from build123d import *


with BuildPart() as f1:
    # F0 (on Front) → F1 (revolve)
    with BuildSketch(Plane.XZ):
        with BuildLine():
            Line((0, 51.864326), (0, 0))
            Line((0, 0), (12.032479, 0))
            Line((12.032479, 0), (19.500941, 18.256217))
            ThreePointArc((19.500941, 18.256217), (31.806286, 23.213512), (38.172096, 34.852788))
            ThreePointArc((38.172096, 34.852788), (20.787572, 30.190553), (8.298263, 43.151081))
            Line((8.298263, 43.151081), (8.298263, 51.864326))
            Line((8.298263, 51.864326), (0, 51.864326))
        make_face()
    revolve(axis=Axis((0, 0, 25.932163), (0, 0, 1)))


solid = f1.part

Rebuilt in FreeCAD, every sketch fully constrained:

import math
import FreeCAD as App
import Part
import Sketcher
Q = App.Units.Quantity

doc = App.newDocument("Part")
body = doc.addObject("PartDesign::Body", "Body")

sketch1 = doc.addObject("Sketcher::SketchObject", "Sketch")
body.addObject(sketch1)
sketch1.AttachmentSupport = (doc.XZ_Plane, [""])
sketch1.MapMode = "FlatFace"
sketch1.addGeometry(Part.LineSegment(App.Vector(0, 52, 0), App.Vector(0, 0, 0)), False)
sketch1.addGeometry(Part.LineSegment(App.Vector(0, 0, 0), App.Vector(12, 0, 0)), False)
sketch1.addGeometry(Part.LineSegment(App.Vector(12, 0, 0), App.Vector(20, 18, 0)), False)
sketch1.addGeometry(Part.ArcOfCircle(Part.Circle(App.Vector(19, 38, 0), App.Vector(0, 0, 1), 20), math.radians(-88), math.radians(-9)), False)
sketch1.addGeometry(Part.ArcOfCircle(Part.Circle(App.Vector(26, 47, 0), App.Vector(0, 0, 1), 18), math.radians(-167), math.radians(-44)), False)
sketch1.addGeometry(Part.LineSegment(App.Vector(8, 43, 0), App.Vector(8, 52, 0)), False)
sketch1.addGeometry(Part.LineSegment(App.Vector(8, 52, 0), App.Vector(0, 52, 0)), False)
sketch1.addConstraint(Sketcher.Constraint("Coincident", 0, 2, 1, 1))
sketch1.addConstraint(Sketcher.Constraint("Coincident", 1, 2, 2, 1))
sketch1.addConstraint(Sketcher.Constraint("Coincident", 2, 2, 3, 1))
sketch1.addConstraint(Sketcher.Constraint("Coincident", 3, 2, 4, 2))
sketch1.addConstraint(Sketcher.Constraint("Coincident", 4, 1, 5, 1))
sketch1.addConstraint(Sketcher.Constraint("Coincident", 5, 2, 6, 1))
sketch1.addConstraint(Sketcher.Constraint("Coincident", 6, 2, 0, 1))
sketch1.addConstraint(Sketcher.Constraint("Vertical", 0))
sketch1.addConstraint(Sketcher.Constraint("Horizontal", 1))
sketch1.addConstraint(Sketcher.Constraint("Vertical", 5))
sketch1.addConstraint(Sketcher.Constraint("Horizontal", 6))
sketch1.addConstraint(Sketcher.Constraint("Coincident", 0, 2, -1, 1))
sketch1.addConstraint(Sketcher.Constraint("Radius", 3, Q("19.685973 mm")))
sketch1.addConstraint(Sketcher.Constraint("Radius", 4, Q("17.712287 mm")))
sketch1.addConstraint(Sketcher.Constraint("DistanceX", 1, 1, 1, 2, Q("12.032479 mm")))
sketch1.addConstraint(Sketcher.Constraint("DistanceX", 3, 3, 2, 2, Q("0.773299 mm")))
sketch1.addConstraint(Sketcher.Constraint("Distance", 2, Q("19.724791 mm")))
sketch1.addConstraint(Sketcher.Constraint("DistanceX", 6, 2, 6, 1, Q("8.298263 mm")))
sketch1.addConstraint(Sketcher.Constraint("DistanceY", 0, 2, 0, 1, Q("51.864326 mm")))
sketch1.addConstraint(Sketcher.Constraint("DistanceY", 5, 1, 5, 2, Q("8.713245 mm")))
sketch1.addConstraint(Sketcher.Constraint("DistanceX", -1, 1, 3, 3, Q("18.727642 mm")))
sketch1.addConstraint(Sketcher.Constraint("DistanceX", -1, 1, 4, 3, Q("25.52816 mm")))
revolution = doc.addObject("PartDesign::Revolution", "Revolution")
body.addObject(revolution)
revolution.Profile = sketch1
revolution.ReferenceAxis = (sketch1, ["V_Axis"])
revolution.Angle = 360

doc.recompute()
